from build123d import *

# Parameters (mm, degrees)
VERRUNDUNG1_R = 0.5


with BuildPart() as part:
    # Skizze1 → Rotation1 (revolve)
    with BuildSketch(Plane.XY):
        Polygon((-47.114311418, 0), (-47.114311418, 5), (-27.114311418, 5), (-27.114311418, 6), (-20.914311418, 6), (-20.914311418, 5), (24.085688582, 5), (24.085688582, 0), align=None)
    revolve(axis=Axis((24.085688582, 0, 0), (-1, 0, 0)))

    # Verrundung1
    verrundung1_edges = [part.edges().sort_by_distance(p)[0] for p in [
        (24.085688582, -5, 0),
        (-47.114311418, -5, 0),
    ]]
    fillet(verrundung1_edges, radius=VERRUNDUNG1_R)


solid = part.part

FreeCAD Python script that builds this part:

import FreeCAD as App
import Part
import Sketcher
from FreeCAD import Vector
Q = App.Units.Quantity


def edges_at(feature, points):
    """Names of the edges that pass closest to the given points."""
    edges = feature.Shape.Edges
    near = lambda p: min(range(len(edges)), key=lambda i: edges[i].distToShape(Part.Vertex(*p))[0])
    return sorted({f"Edge{near(p) + 1}" for p in points})


def add_polygon(sketch, points):
    """Adds a closed chain of lines whose ends are joined by coincident constraints."""
    first, n = sketch.GeometryCount, len(points)
    for a, b in zip(points, points[1:] + points[:1]):
        sketch.addGeometry(Part.LineSegment(App.Vector(*a, 0), App.Vector(*b, 0)), False)
    for i in range(n):
        sketch.addConstraint(Sketcher.Constraint("Coincident", first + i, 2, first + (i + 1) % n, 1))

doc = App.newDocument("Part")
params = doc.addObject("Spreadsheet::Sheet", "Params")
for row, (alias, value) in enumerate([
    ("sketch1_width", "45 mm"),
    ("sketch1_width2", "20 mm"),
    ("sketch1_height", "5 mm"),
    ("sketch1_height2", "1 mm"),
    ("sketch1_width3", "71.2 mm"),
    ("revolution_angle", "360 deg"),
    ("fillet_radius", "0.5 mm"),
], start=1):
    params.set(f"A{row}", alias)
    params.set(f"B{row}", "=" + value)
    params.setAlias(f"B{row}", alias)

body = doc.addObject("PartDesign::Body", "Body")

# Sketch on XY plane
sketch1 = doc.addObject("Sketcher::SketchObject", "Sketch")
body.addObject(sketch1)
sketch1.AttachmentSupport = (doc.XY_Plane, [""])
sketch1.MapMode = "FlatFace"
add_polygon(sketch1, [(-47.114311, 5), (-47.114311, 0), (24.085689, 0), (24.085689, 5), (-20.914311, 5), (-20.914311, 6), (-27.114311, 6), (-27.114311, 5)])  # lines 0-7
sketch1.addConstraint(Sketcher.Constraint("Vertical", 0))
sketch1.addConstraint(Sketcher.Constraint("Horizontal", 1))
sketch1.addConstraint(Sketcher.Constraint("Vertical", 2))
sketch1.addConstraint(Sketcher.Constraint("Horizontal", 3))
sketch1.addConstraint(Sketcher.Constraint("Vertical", 4))
sketch1.addConstraint(Sketcher.Constraint("Horizontal", 5))
sketch1.addConstraint(Sketcher.Constraint("Vertical", 6))
sketch1.addConstraint(Sketcher.Constraint("Horizontal", 7))
sketch1.addConstraint(Sketcher.Constraint("PointOnObject", 0, 2, -1))
sketch1.addConstraint(Sketcher.Constraint("Horizontal", 3, 2, 6, 2))
sketch1.addConstraint(Sketcher.Constraint("DistanceX", 3, 2, 3, 1, Q("45 mm")))
sketch1.addConstraint(Sketcher.Constraint("DistanceX", 7, 2, 7, 1, Q("20 mm")))
sketch1.addConstraint(Sketcher.Constraint("DistanceY", 0, 2, 0, 1, Q("5 mm")))
sketch1.addConstraint(Sketcher.Constraint("DistanceY", 4, 1, 4, 2, Q("1 mm")))
sketch1.addConstraint(Sketcher.Constraint("DistanceX", 1, 1, 1, 2, Q("71.2 mm")))
sketch1.addConstraint(Sketcher.Constraint("DistanceX", 0, 2, -1, 1, Q("47.114311 mm")))
sketch1.setExpression("Constraints[18]", "Params.sketch1_width")
sketch1.setExpression("Constraints[19]", "Params.sketch1_width2")
sketch1.setExpression("Constraints[20]", "Params.sketch1_height")
sketch1.setExpression("Constraints[21]", "Params.sketch1_height2")
sketch1.setExpression("Constraints[22]", "Params.sketch1_width3")
revolution = doc.addObject("PartDesign::Revolution", "Revolution")
body.addObject(revolution)
revolution.Profile = sketch1
revolution.ReferenceAxis = (sketch1, ["H_Axis"])
revolution.setExpression("Angle", "Params.revolution_angle")
doc.recompute()

fillet = doc.addObject("PartDesign::Fillet", "Fillet")
body.addObject(fillet)
fillet.Base = (revolution, edges_at(revolution, [(24.086, -5, 0), (-47.114, -5, 0)]))
fillet.setExpression("Radius", "Params.fillet_radius")

doc.recompute()
